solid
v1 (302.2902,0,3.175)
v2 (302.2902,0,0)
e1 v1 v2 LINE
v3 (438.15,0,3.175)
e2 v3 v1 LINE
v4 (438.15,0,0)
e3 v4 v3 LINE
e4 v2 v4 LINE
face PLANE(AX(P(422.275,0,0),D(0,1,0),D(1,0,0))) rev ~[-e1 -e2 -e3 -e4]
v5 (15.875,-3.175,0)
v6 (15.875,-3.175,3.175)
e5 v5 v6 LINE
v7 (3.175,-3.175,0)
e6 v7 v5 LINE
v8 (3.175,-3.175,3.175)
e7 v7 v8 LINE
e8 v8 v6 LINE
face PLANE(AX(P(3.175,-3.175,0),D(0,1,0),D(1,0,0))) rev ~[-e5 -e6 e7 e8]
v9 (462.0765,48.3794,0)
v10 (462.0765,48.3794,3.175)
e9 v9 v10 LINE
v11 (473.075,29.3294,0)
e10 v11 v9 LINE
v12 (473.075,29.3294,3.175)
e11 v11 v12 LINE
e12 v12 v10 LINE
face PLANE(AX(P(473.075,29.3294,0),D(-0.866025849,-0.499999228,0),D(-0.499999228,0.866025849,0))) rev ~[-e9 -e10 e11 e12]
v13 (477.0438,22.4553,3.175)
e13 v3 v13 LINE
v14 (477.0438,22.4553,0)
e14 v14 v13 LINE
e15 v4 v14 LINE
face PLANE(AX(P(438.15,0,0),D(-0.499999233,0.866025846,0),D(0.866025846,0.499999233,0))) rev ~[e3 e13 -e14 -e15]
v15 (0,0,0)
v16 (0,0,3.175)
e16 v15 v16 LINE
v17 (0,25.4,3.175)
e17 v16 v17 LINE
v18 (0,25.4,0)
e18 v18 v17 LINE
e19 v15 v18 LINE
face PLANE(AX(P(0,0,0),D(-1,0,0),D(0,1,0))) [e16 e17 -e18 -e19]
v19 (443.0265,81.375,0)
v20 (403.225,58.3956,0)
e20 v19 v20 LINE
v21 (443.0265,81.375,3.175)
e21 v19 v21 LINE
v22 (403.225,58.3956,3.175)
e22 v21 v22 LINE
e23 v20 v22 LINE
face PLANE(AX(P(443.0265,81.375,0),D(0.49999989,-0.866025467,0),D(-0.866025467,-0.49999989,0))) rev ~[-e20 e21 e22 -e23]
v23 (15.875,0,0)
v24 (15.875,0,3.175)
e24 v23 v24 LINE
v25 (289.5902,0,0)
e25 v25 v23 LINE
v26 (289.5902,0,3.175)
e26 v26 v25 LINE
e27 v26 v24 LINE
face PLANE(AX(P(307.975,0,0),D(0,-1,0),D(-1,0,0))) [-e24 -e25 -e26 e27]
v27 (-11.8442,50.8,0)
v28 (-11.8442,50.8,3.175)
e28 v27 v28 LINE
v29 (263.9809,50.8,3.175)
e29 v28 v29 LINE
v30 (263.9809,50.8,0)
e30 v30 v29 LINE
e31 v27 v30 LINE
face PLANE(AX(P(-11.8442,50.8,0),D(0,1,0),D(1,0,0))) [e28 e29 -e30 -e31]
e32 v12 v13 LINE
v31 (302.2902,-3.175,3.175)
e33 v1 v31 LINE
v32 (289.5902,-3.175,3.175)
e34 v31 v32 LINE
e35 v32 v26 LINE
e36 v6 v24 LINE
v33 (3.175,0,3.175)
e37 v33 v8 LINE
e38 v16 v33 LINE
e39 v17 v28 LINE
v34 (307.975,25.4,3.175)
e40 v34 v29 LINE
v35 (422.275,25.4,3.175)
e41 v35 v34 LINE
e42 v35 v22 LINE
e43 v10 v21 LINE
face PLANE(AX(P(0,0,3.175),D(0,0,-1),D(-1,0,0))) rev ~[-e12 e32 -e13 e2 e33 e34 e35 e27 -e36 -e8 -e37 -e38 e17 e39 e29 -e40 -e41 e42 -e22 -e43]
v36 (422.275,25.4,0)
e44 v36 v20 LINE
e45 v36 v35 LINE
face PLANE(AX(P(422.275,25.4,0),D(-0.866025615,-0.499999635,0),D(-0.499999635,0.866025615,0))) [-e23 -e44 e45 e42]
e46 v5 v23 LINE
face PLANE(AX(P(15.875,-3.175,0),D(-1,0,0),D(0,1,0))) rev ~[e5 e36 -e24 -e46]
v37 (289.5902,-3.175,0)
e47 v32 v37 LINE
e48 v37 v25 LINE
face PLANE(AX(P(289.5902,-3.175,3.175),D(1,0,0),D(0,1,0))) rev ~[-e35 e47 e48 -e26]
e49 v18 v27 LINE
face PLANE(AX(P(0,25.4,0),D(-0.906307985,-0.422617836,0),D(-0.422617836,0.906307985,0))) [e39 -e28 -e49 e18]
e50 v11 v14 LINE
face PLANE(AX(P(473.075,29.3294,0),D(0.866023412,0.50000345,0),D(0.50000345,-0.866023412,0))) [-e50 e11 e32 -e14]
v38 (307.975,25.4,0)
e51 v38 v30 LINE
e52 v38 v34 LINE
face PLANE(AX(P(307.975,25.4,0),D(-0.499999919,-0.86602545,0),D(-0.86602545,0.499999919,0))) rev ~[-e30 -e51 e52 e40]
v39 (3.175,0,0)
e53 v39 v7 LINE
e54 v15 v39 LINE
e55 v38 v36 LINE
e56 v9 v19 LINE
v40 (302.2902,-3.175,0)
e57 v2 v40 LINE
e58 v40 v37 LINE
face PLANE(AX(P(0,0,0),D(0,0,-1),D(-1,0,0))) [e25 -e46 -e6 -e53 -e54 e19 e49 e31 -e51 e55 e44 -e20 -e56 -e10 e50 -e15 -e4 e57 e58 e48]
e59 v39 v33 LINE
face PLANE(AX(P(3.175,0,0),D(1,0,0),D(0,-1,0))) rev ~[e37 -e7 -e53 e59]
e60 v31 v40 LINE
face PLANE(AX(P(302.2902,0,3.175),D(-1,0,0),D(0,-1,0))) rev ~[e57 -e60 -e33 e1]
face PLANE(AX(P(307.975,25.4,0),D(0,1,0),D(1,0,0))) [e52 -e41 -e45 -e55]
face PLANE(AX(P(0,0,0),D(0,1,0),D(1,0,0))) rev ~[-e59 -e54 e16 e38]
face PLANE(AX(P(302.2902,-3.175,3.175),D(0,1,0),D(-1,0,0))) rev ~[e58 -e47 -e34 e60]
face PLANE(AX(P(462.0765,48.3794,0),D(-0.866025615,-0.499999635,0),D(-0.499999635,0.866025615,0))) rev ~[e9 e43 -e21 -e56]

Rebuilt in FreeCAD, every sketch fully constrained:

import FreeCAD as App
import Part
import Sketcher

V = App.Vector
Q = App.Units.Quantity

doc = App.newDocument("Part")
params = doc.addObject("Spreadsheet::Sheet", "Params")
for row, (alias, value) in enumerate([
    ("sketch1_height", "1 in"),
    ("sketch1_width", "0.5 in"),
    ("sketch1_width2", "0.125 in"),
    ("sketch1_width3", "16 in"),
    ("sketch1_width4", "4.5 in"),
    ("pad1_length", "0.125 in"),
    ("sketch2_width", "0.5 in"),
    ("sketch2_height", "0.125 in"),
    ("pad2_length", "0.125 in"),
    ("sketch3_height", "1 in"),
    ("pad3_length", "0.125 in"),
    ("sketch4_width", "0.625 in"),
    ("pad4_length", "0.125 in"),
    ("sketch5_length", "1.5 in"),
    ("pad5_length", "0.125 in"),
], start=1):
    params.set(f"A{row}", alias)
    params.set(f"B{row}", "=" + value)
    params.setAlias(f"B{row}", alias)

body = doc.addObject("PartDesign::Body", "Body")

# Sketch on XY plane
sketch1 = body.newObject("Sketcher::SketchObject", "Sketch")
sketch1.AttachmentSupport = (doc.getObject("XY_Plane"), [""])
sketch1.MapMode = "FlatFace"
sketch1.addGeometry(Part.LineSegment(V(0, 25.4, 0), V(0, 0, 0)), False)
sketch1.addGeometry(Part.LineSegment(V(0, 0, 0), V(3.175, 0, 0)), False)
sketch1.addGeometry(Part.LineSegment(V(3.175, 0, 0), V(3.175, -3.175, 0)), False)
sketch1.addGeometry(Part.LineSegment(V(3.175, -3.175, 0), V(15.875, -3.175, 0)), False)
sketch1.addGeometry(Part.LineSegment(V(15.875, -3.175, 0), V(15.875, 0, 0)), False)
sketch1.addGeometry(Part.LineSegment(V(15.875, 0, 0), V(422.275, 0, 0)), False)
sketch1.addGeometry(Part.LineSegment(V(422.275, 0, 0), V(422.275, 25.4, 0)), False)
sketch1.addGeometry(Part.LineSegment(V(422.275, 25.4, 0), V(307.975, 25.4, 0)), False)
sketch1.addGeometry(Part.LineSegment(V(307.975, 25.4, 0), V(263.9809, 50.8, 0)), False)
sketch1.addGeometry(Part.LineSegment(V(263.9809, 50.8, 0), V(-11.8442, 50.8, 0)), False)
sketch1.addGeometry(Part.LineSegment(V(-11.8442, 50.8, 0), V(0, 25.4, 0)), False)
sketch1.addConstraint(Sketcher.Constraint("Coincident", 0, 2, 1, 1))
sketch1.addConstraint(Sketcher.Constraint("Coincident", 1, 2, 2, 1))
sketch1.addConstraint(Sketcher.Constraint("Coincident", 2, 2, 3, 1))
sketch1.addConstraint(Sketcher.Constraint("Coincident", 3, 2, 4, 1))
sketch1.addConstraint(Sketcher.Constraint("Coincident", 4, 2, 5, 1))
sketch1.addConstraint(Sketcher.Constraint("Coincident", 5, 2, 6, 1))
sketch1.addConstraint(Sketcher.Constraint("Coincident", 6, 2, 7, 1))
sketch1.addConstraint(Sketcher.Constraint("Coincident", 7, 2, 8, 1))
sketch1.addConstraint(Sketcher.Constraint("Coincident", 8, 2, 9, 1))
sketch1.addConstraint(Sketcher.Constraint("Coincident", 9, 2, 10, 1))
sketch1.addConstraint(Sketcher.Constraint("Coincident", 10, 2, 0, 1))
sketch1.addConstraint(Sketcher.Constraint("Vertical", 0))
sketch1.addConstraint(Sketcher.Constraint("Horizontal", 1))
sketch1.addConstraint(Sketcher.Constraint("Vertical", 2))
sketch1.addConstraint(Sketcher.Constraint("Horizontal", 3))
sketch1.addConstraint(Sketcher.Constraint("Vertical", 4))
sketch1.addConstraint(Sketcher.Constraint("Horizontal", 5))
sketch1.addConstraint(Sketcher.Constraint("Vertical", 6))
sketch1.addConstraint(Sketcher.Constraint("Horizontal", 7))
sketch1.addConstraint(Sketcher.Constraint("Horizontal", 9))
sketch1.addConstraint(Sketcher.Constraint("Coincident", 0, 2, -1, 1))
sketch1.addConstraint(Sketcher.Constraint("PointOnObject", 4, 2, -1))
sketch1.addConstraint(Sketcher.Constraint("Horizontal", 7, 2, 10, 2))
sketch1.addConstraint(Sketcher.Constraint("Equal", 1, 2))
sketch1.addConstraint(Sketcher.Constraint("DistanceY", 0, 2, 0, 1, Q("1 in")))
sketch1.addConstraint(Sketcher.Constraint("DistanceX", 3, 1, 3, 2, Q("0.5 in")))
sketch1.addConstraint(Sketcher.Constraint("Angle", 8, Q("150 deg")))
sketch1.addConstraint(Sketcher.Constraint("DistanceY", 7, 2, 8, 2, Q("1 in")))
sketch1.addConstraint(Sketcher.Constraint("DistanceX", 1, 1, 1, 2, Q("0.125 in")))
sketch1.addConstraint(Sketcher.Constraint("DistanceX", 5, 1, 5, 2, Q("16 in")))
sketch1.addConstraint(Sketcher.Constraint("DistanceX", 7, 2, 7, 1, Q("4.5 in")))
sketch1.addConstraint(Sketcher.Constraint("Angle", 10, Q("-65 deg")))
sketch1.setExpression("Constraints[24]", "Params.sketch1_height")
sketch1.setExpression("Constraints[25]", "Params.sketch1_width")
sketch1.setExpression("Constraints[28]", "Params.sketch1_width2")
sketch1.setExpression("Constraints[29]", "Params.sketch1_width3")
sketch1.setExpression("Constraints[30]", "Params.sketch1_width4")
pad1 = body.newObject("PartDesign::Pad", "Pad")
pad1.Profile = sketch1
pad1.setExpression("Length", "Params.pad1_length")

# Sketch on XY plane
sketch2 = body.newObject("Sketcher::SketchObject", "Sketch001")
sketch2.AttachmentSupport = (doc.getObject("XY_Plane"), [""])
sketch2.MapMode = "FlatFace"
sketch2.AttachmentOffset = App.Placement(V(0, 0, 0.125 * 25.4), App.Rotation())
sketch2.addGeometry(Part.LineSegment(V(302.2902, 0, 0), V(289.5902, 0, 0)), False)
sketch2.addGeometry(Part.LineSegment(V(289.5902, 0, 0), V(289.5902, -3.175, 0)), False)
sketch2.addGeometry(Part.LineSegment(V(289.5902, -3.175, 0), V(302.2902, -3.175, 0)), False)
sketch2.addGeometry(Part.LineSegment(V(302.2902, -3.175, 0), V(302.2902, 0, 0)), False)
sketch2.addConstraint(Sketcher.Constraint("Coincident", 0, 2, 1, 1))
sketch2.addConstraint(Sketcher.Constraint("Coincident", 1, 2, 2, 1))
sketch2.addConstraint(Sketcher.Constraint("Coincident", 2, 2, 3, 1))
sketch2.addConstraint(Sketcher.Constraint("Coincident", 3, 2, 0, 1))
sketch2.addConstraint(Sketcher.Constraint("Horizontal", 0))
sketch2.addConstraint(Sketcher.Constraint("Vertical", 1))
sketch2.addConstraint(Sketcher.Constraint("Horizontal", 2))
sketch2.addConstraint(Sketcher.Constraint("Vertical", 3))
sketch2.addConstraint(Sketcher.Constraint("PointOnObject", 0, 2, -1))
sketch2.addConstraint(Sketcher.Constraint("DistanceX", 0, 2, 0, 1, Q("0.5 in")))
sketch2.addConstraint(Sketcher.Constraint("DistanceY", 1, 2, 1, 1, Q("0.125 in")))
sketch2.addConstraint(Sketcher.Constraint("DistanceX", -1, 1, 0, 2, Q("11.4012 in")))
sketch2.setExpression("Constraints[9]", "Params.sketch2_width")
sketch2.setExpression("Constraints[10]", "Params.sketch2_height")
pad2 = body.newObject("PartDesign::Pad", "Pad001")
pad2.Profile = sketch2
pad2.setExpression("Length", "Params.pad2_length")
pad2.Reversed = True

# Sketch on XY plane
sketch3 = body.newObject("Sketcher::SketchObject", "Sketch002")
sketch3.AttachmentSupport = (doc.getObject("XY_Plane"), [""])
sketch3.MapMode = "FlatFace"
sketch3.addGeometry(Part.LineSegment(V(473.075, 29.3294, 0), V(422.275, 0, 0)), False)
sketch3.addGeometry(Part.LineSegment(V(422.275, 0, 0), V(422.275, 25.4, 0)), False)
sketch3.addGeometry(Part.LineSegment(V(422.275, 25.4, 0), V(462.0765, 48.3794, 0)), False)
sketch3.addGeometry(Part.LineSegment(V(462.0765, 48.3794, 0), V(473.075, 29.3294, 0)), False)
sketch3.addConstraint(Sketcher.Constraint("Coincident", 0, 2, 1, 1))
sketch3.addConstraint(Sketcher.Constraint("Coincident", 1, 2, 2, 1))
sketch3.addConstraint(Sketcher.Constraint("Coincident", 2, 2, 3, 1))
sketch3.addConstraint(Sketcher.Constraint("Coincident", 3, 2, 0, 1))
sketch3.addConstraint(Sketcher.Constraint("Vertical", 1))
sketch3.addConstraint(Sketcher.Constraint("PointOnObject", 0, 2, -1))
sketch3.addConstraint(Sketcher.Constraint("Parallel", 0, 2))
sketch3.addConstraint(Sketcher.Constraint("Perpendicular", 2, 3))
sketch3.addConstraint(Sketcher.Constraint("Angle", 3, Q("-60 deg")))
sketch3.addConstraint(Sketcher.Constraint("DistanceY", 1, 1, 1, 2, Q("1 in")))
sketch3.addConstraint(Sketcher.Constraint("DistanceX", 1, 2, 3, 2, Q("2 in")))
sketch3.addConstraint(Sketcher.Constraint("DistanceX", -1, 1, 0, 2, Q("16.625 in")))
sketch3.setExpression("Constraints[9]", "Params.sketch3_height")
pad3 = body.newObject("PartDesign::Pad", "Pad002")
pad3.Profile = sketch3
pad3.setExpression("Length", "Params.pad3_length")

# Sketch on XY plane
sketch4 = body.newObject("Sketcher::SketchObject", "Sketch003")
sketch4.AttachmentSupport = (doc.getObject("XY_Plane"), [""])
sketch4.MapMode = "FlatFace"
sketch4.addGeometry(Part.LineSegment(V(422.275, 0, 0), V(473.075, 29.3294, 0)), False)
sketch4.addGeometry(Part.LineSegment(V(473.075, 29.3294, 0), V(477.0438, 22.4553, 0)), False)
sketch4.addGeometry(Part.LineSegment(V(477.0438, 22.4553, 0), V(438.15, 0, 0)), False)
sketch4.addGeometry(Part.LineSegment(V(438.15, 0, 0), V(422.275, 0, 0)), False)
sketch4.addConstraint(Sketcher.Constraint("Coincident", 0, 2, 1, 1))
sketch4.addConstraint(Sketcher.Constraint("Coincident", 1, 2, 2, 1))
sketch4.addConstraint(Sketcher.Constraint("Coincident", 2, 2, 3, 1))
sketch4.addConstraint(Sketcher.Constraint("Coincident", 3, 2, 0, 1))
sketch4.addConstraint(Sketcher.Constraint("Horizontal", 3))
sketch4.addConstraint(Sketcher.Constraint("PointOnObject", 2, 2, -1))
sketch4.addConstraint(Sketcher.Constraint("Perpendicular", 0, 1))
sketch4.addConstraint(Sketcher.Constraint("Perpendicular", 1, 2))
sketch4.addConstraint(Sketcher.Constraint("DistanceX", 3, 2, 3, 1, Q("0.625 in")))
sketch4.addConstraint(Sketcher.Constraint("Angle", 0, Q("30 deg")))
sketch4.addConstraint(Sketcher.Constraint("DistanceX", 3, 2, 0, 2, Q("2 in")))
sketch4.addConstraint(Sketcher.Constraint("DistanceX", -1, 1, 2, 2, Q("17.25 in")))
sketch4.setExpression("Constraints[8]", "Params.sketch4_width")
pad4 = body.newObject("PartDesign::Pad", "Pad003")
pad4.Profile = sketch4
pad4.setExpression("Length", "Params.pad4_length")

# Sketch on XY plane
sketch5 = body.newObject("Sketcher::SketchObject", "Sketch004")
sketch5.AttachmentSupport = (doc.getObject("XY_Plane"), [""])
sketch5.MapMode = "FlatFace"
sketch5.addGeometry(Part.LineSegment(V(462.0765, 48.3794, 0), V(422.275, 25.4, 0)), False)
sketch5.addGeometry(Part.LineSegment(V(422.275, 25.4, 0), V(403.225, 58.3956, 0)), False)
sketch5.addGeometry(Part.LineSegment(V(403.225, 58.3956, 0), V(443.0265, 81.375, 0)), False)
sketch5.addGeometry(Part.LineSegment(V(443.0265, 81.375, 0), V(462.0765, 48.3794, 0)), False)
sketch5.addConstraint(Sketcher.Constraint("Coincident", 0, 2, 1, 1))
sketch5.addConstraint(Sketcher.Constraint("Coincident", 1, 2, 2, 1))
sketch5.addConstraint(Sketcher.Constraint("Coincident", 2, 2, 3, 1))
sketch5.addConstraint(Sketcher.Constraint("Coincident", 3, 2, 0, 1))
sketch5.addConstraint(Sketcher.Constraint("Perpendicular", 0, 1))
sketch5.addConstraint(Sketcher.Constraint("Perpendicular", 1, 2))
sketch5.addConstraint(Sketcher.Constraint("Perpendicular", 2, 3))
sketch5.addConstraint(Sketcher.Constraint("Distance", 1, Q("1.5 in")))
sketch5.addConstraint(Sketcher.Constraint("DistanceY", -1, 1, 0, 2, Q("1 in")))
sketch5.addConstraint(Sketcher.Constraint("Angle", 0, Q("-150 deg")))
sketch5.addConstraint(Sketcher.Constraint("DistanceX", -1, 1, 0, 2, Q("16.625 in")))
sketch5.addConstraint(Sketcher.Constraint("DistanceX", -1, 1, 2, 2, Q("17.442 in")))
sketch5.setExpression("Constraints[7]", "Params.sketch5_length")
pad5 = body.newObject("PartDesign::Pad", "Pad004")
pad5.Profile = sketch5
pad5.setExpression("Length", "Params.pad5_length")

doc.recompute()
